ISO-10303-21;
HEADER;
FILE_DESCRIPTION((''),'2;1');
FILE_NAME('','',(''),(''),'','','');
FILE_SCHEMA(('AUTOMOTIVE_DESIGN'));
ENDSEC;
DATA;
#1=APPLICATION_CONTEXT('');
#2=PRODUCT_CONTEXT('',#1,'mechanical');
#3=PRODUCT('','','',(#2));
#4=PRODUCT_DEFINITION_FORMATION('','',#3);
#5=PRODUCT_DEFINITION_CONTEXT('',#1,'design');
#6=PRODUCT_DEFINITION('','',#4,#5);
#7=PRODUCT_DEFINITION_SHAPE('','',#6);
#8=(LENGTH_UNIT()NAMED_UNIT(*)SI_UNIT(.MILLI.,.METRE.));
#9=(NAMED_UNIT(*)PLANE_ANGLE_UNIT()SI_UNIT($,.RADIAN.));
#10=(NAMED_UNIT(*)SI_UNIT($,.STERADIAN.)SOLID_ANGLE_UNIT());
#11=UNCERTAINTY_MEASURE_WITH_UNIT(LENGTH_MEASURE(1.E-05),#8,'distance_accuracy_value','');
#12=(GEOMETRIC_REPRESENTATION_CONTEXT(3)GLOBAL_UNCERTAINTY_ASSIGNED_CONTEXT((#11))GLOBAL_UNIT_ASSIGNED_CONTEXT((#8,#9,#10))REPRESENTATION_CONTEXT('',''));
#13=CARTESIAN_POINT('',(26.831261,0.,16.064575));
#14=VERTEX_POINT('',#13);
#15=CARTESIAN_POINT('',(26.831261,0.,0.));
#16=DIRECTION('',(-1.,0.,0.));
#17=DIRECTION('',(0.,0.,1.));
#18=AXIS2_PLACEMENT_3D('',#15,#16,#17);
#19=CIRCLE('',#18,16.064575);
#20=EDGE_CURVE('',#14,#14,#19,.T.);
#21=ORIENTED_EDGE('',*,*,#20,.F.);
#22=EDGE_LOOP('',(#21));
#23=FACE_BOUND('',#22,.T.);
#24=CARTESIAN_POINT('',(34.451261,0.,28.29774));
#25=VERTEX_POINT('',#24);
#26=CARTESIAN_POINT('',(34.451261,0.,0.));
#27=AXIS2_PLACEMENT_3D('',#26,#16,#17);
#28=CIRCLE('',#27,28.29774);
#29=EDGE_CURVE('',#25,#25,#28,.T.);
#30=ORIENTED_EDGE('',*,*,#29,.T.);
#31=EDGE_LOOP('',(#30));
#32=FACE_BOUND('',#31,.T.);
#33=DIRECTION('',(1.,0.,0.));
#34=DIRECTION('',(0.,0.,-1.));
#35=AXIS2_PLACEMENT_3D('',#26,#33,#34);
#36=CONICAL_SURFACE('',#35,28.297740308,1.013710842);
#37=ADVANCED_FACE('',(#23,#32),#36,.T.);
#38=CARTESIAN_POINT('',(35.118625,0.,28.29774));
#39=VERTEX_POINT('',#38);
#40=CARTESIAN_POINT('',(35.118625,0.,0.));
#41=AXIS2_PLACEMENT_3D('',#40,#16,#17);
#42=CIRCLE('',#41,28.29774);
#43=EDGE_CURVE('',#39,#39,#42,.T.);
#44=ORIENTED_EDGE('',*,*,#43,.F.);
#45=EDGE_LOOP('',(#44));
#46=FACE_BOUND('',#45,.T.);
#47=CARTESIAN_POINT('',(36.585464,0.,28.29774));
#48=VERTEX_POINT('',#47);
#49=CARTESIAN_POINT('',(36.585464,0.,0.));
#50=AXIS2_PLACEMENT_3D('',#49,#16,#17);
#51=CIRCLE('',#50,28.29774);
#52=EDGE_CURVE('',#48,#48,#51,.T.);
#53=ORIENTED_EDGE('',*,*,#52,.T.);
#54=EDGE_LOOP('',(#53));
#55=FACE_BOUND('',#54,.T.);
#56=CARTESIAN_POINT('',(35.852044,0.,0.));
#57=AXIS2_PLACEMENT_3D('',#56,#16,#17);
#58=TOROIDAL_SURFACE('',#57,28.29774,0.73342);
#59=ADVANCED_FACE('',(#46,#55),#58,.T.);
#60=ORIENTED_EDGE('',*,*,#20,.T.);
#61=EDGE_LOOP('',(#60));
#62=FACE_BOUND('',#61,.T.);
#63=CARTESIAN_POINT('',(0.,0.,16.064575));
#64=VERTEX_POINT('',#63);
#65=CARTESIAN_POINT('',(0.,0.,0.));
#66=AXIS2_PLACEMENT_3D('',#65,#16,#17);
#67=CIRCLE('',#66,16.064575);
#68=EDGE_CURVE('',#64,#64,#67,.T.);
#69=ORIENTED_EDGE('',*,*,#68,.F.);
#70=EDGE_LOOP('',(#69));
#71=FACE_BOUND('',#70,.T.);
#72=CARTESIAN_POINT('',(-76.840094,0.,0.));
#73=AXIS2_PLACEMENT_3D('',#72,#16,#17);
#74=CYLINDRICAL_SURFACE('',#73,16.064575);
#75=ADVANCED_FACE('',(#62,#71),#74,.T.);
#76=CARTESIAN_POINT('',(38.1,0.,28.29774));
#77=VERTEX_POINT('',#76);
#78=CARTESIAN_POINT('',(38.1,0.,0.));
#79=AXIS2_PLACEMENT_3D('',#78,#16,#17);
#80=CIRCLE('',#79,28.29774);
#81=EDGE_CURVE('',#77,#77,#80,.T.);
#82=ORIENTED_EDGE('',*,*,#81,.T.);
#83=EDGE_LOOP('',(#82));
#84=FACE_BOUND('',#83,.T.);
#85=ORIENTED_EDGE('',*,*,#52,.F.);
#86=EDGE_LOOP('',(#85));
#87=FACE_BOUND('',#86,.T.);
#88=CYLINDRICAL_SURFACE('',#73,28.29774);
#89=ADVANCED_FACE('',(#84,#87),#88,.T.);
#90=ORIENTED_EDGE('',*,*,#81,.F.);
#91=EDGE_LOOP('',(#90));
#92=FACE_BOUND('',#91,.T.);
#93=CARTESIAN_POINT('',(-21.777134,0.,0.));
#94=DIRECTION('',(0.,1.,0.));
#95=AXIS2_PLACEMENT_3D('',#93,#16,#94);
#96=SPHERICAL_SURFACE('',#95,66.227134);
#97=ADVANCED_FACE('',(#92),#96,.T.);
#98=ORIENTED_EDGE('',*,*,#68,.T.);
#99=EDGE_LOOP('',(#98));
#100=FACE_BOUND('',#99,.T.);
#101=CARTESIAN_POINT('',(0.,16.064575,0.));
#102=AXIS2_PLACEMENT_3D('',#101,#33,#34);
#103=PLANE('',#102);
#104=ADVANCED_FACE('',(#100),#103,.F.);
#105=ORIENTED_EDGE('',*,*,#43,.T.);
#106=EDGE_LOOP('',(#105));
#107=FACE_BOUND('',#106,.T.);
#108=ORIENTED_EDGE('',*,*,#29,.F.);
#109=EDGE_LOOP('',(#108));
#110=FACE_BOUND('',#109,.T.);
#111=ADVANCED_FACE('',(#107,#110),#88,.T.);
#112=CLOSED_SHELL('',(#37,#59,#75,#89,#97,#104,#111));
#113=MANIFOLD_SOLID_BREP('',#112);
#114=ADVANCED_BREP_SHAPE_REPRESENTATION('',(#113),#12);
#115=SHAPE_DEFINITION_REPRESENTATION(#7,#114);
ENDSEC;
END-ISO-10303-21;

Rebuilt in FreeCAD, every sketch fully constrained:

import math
import FreeCAD as App
import Part
import Sketcher
from FreeCAD import Vector
Q = App.Units.Quantity

doc = App.newDocument("Part")
body = doc.addObject("PartDesign::Body", "Body")

sketch1 = doc.addObject("Sketcher::SketchObject", "Sketch")
body.addObject(sketch1)
sketch1.AttachmentSupport = (doc.XY_Plane, [""])
sketch1.MapMode = "FlatFace"
sketch1.addGeometry([
    Part.LineSegment(Vector(38.1, 0, 0), Vector(38.1, 28.29774, 0)),
    Part.LineSegment(Vector(38.1, 28.29774, 0), Vector(36.585464, 28.29774, 0)),
    Part.ArcOfCircle(Part.Circle(Vector(35.852044, 28.29774, 0), Vector(0, 0, 1), 0.73342), math.radians(0), math.radians(180)),
    Part.LineSegment(Vector(35.118625, 28.29774, 0), Vector(34.451261, 28.29774, 0)),
    Part.LineSegment(Vector(34.451261, 28.29774, 0), Vector(26.831261, 16.064575, 0)),
    Part.LineSegment(Vector(26.831261, 16.064575, 0), Vector(0, 16.064575, 0)),
    Part.LineSegment(Vector(0, 16.064575, 0), Vector(0, 0, 0)),
    Part.LineSegment(Vector(0, 0, 0), Vector(38.1, 0, 0)),
], False)
sketch1.addConstraint([
    Sketcher.Constraint("Coincident", 0, 2, 1, 1),
    Sketcher.Constraint("Coincident", 1, 2, 2, 1),
    Sketcher.Constraint("Coincident", 2, 2, 3, 1),
    Sketcher.Constraint("Coincident", 3, 2, 4, 1),
    Sketcher.Constraint("Coincident", 4, 2, 5, 1),
    Sketcher.Constraint("Coincident", 5, 2, 6, 1),
    Sketcher.Constraint("Coincident", 6, 2, 7, 1),
    Sketcher.Constraint("Coincident", 7, 2, 0, 1),
    Sketcher.Constraint("Vertical", 0),
    Sketcher.Constraint("Horizontal", 1),
    Sketcher.Constraint("Horizontal", 3),
    Sketcher.Constraint("Horizontal", 5),
    Sketcher.Constraint("Vertical", 6),
    Sketcher.Constraint("Horizontal", 7),
    Sketcher.Constraint("Coincident", 6, 2, -1, 1),
    Sketcher.Constraint("Horizontal", 2, 3, 0, 2),
    Sketcher.Constraint("Horizontal", 1, 2, 2, 2),
    Sketcher.Constraint("DistanceX", 7, 1, 7, 2, Q("1.5 in")),
    Sketcher.Constraint("DistanceX", 4, 2, 3, 2, Q("0.3 in")),
    Sketcher.Constraint("Radius", 2, 0.73342),
    Sketcher.Constraint("DistanceX", 5, 2, 5, 1, 26.831261),
    Sketcher.Constraint("DistanceY", 0, 1, 0, 2, 28.29774),
    Sketcher.Constraint("DistanceX", 1, 2, 1, 1, 1.514536),
    Sketcher.Constraint("DistanceY", 6, 2, 6, 1, 16.064575),
])
revolution = doc.addObject("PartDesign::Revolution", "Revolution")
body.addObject(revolution)
revolution.Profile = sketch1
revolution.ReferenceAxis = (sketch1, ["H_Axis"])
revolution.Angle = 360

sketch2 = doc.addObject("Sketcher::SketchObject", "Sketch001")
body.addObject(sketch2)
sketch2.AttachmentSupport = (doc.XY_Plane, [""])
sketch2.MapMode = "FlatFace"
sketch2.addGeometry([
    Part.LineSegment(Vector(38.1, 28.29774, 0), Vector(38.1, 0, 0)),
    Part.LineSegment(Vector(38.1, 0, 0), Vector(44.45, 0, 0)),
    Part.ArcOfCircle(Part.Circle(Vector(-21.777134, 0, 0), Vector(0, 0, 1), 66.227134), math.radians(0), math.radians(25.295267)),
], False)
sketch2.addConstraint([
    Sketcher.Constraint("Coincident", 0, 2, 1, 1),
    Sketcher.Constraint("Coincident", 1, 2, 2, 1),
    Sketcher.Constraint("Coincident", 2, 2, 0, 1),
    Sketcher.Constraint("Vertical", 0),
    Sketcher.Constraint("Horizontal", 1),
    Sketcher.Constraint("PointOnObject", 2, 3, -1),
    Sketcher.Constraint("PointOnObject", 0, 2, -1),
    Sketcher.Constraint("DistanceX", 1, 1, 1, 2, Q("0.25 in")),
    Sketcher.Constraint("DistanceX", -1, 1, 0, 2, Q("1.5 in")),
    Sketcher.Constraint("Radius", 2, 66.227134),
])
revolution2 = doc.addObject("PartDesign::Revolution", "Revolution001")
body.addObject(revolution2)
revolution2.Profile = sketch2
revolution2.ReferenceAxis = (sketch2, ["H_Axis"])
revolution2.Angle = 360

doc.recompute()
